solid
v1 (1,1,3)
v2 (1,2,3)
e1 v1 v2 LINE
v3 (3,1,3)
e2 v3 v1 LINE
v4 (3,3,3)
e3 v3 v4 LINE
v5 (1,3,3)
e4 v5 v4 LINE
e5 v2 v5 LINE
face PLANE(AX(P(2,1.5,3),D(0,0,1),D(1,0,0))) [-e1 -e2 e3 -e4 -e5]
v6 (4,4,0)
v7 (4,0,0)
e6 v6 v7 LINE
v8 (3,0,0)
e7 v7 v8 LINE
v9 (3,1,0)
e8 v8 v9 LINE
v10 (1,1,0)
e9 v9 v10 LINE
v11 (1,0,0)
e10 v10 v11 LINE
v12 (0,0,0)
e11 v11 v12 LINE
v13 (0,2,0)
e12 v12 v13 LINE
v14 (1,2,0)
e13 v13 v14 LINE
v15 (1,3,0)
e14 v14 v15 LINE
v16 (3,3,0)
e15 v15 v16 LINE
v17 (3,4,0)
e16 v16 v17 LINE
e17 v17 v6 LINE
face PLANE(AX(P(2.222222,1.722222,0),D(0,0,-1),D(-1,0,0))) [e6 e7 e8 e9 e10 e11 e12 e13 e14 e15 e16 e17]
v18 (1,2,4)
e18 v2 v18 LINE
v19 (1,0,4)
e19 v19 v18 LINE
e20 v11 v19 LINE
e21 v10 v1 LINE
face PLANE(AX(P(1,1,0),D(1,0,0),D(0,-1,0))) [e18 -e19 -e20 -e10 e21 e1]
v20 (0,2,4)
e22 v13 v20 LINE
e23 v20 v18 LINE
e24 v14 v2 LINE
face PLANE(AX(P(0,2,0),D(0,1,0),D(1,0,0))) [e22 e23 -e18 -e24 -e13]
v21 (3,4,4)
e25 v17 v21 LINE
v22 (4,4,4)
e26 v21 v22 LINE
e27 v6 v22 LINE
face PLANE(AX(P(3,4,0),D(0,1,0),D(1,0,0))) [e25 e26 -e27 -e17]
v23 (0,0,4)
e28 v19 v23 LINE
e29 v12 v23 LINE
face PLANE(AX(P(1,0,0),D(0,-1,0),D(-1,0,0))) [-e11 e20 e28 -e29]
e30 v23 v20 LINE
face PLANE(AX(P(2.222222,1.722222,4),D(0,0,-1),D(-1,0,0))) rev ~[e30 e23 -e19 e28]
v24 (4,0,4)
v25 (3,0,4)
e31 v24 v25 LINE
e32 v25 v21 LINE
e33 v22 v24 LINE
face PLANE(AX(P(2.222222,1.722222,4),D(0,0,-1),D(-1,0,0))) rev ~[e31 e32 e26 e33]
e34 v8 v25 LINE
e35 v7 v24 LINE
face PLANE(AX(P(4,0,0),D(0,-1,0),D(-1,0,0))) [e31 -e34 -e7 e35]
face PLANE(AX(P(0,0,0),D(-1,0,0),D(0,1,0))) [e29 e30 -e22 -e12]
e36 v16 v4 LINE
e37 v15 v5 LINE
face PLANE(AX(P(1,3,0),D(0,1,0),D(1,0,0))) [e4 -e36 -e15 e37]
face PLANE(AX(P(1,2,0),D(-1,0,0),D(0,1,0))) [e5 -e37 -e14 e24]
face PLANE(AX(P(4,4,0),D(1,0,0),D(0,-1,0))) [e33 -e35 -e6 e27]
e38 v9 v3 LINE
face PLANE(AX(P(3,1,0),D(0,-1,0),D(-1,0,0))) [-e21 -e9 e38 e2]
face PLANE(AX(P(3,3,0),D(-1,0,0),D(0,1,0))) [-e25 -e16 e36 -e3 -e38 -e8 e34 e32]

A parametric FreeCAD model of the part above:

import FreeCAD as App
import Part
import Sketcher
Q = App.Units.Quantity

doc = App.newDocument("Part")
params = doc.addObject("Spreadsheet::Sheet", "Params")
for row, (alias, value) in enumerate([
    ("sketch1_width", "1 mm"),
    ("sketch1_width2", "2 mm"),
    ("pad1_length", "4 mm"),
    ("sketch2_width", "2 mm"),
    ("sketch2_height", "3 mm"),
    ("pocket1_length", "1 mm"),
], start=1):
    params.set(f"A{row}", alias)
    params.set(f"B{row}", "=" + value)
    params.setAlias(f"B{row}", alias)

body = doc.addObject("PartDesign::Body", "Body")

sketch1 = body.newObject("Sketcher::SketchObject", "Sketch")
sketch1.AttachmentSupport = (doc.getObject("XY_Plane"), [""])
sketch1.MapMode = "FlatFace"
sketch1.addGeometry([
    Part.LineSegment(App.Vector(0, 2, 0), App.Vector(0, 0, 0)),
    Part.LineSegment(App.Vector(0, 0, 0), App.Vector(1, 0, 0)),
    Part.LineSegment(App.Vector(1, 0, 0), App.Vector(1, 1, 0)),
    Part.LineSegment(App.Vector(1, 1, 0), App.Vector(3, 1, 0)),
    Part.LineSegment(App.Vector(3, 1, 0), App.Vector(3, 0, 0)),
    Part.LineSegment(App.Vector(3, 0, 0), App.Vector(4, 0, 0)),
    Part.LineSegment(App.Vector(4, 0, 0), App.Vector(4, 4, 0)),
    Part.LineSegment(App.Vector(4, 4, 0), App.Vector(3, 4, 0)),
    Part.LineSegment(App.Vector(3, 4, 0), App.Vector(3, 3, 0)),
    Part.LineSegment(App.Vector(3, 3, 0), App.Vector(1, 3, 0)),
    Part.LineSegment(App.Vector(1, 3, 0), App.Vector(1, 2, 0)),
    Part.LineSegment(App.Vector(1, 2, 0), App.Vector(0, 2, 0)),
], False)
sketch1.addConstraint([
    Sketcher.Constraint("Coincident", 0, 2, 1, 1),
    Sketcher.Constraint("Coincident", 1, 2, 2, 1),
    Sketcher.Constraint("Coincident", 2, 2, 3, 1),
    Sketcher.Constraint("Coincident", 3, 2, 4, 1),
    Sketcher.Constraint("Coincident", 4, 2, 5, 1),
    Sketcher.Constraint("Coincident", 5, 2, 6, 1),
    Sketcher.Constraint("Coincident", 6, 2, 7, 1),
    Sketcher.Constraint("Coincident", 7, 2, 8, 1),
    Sketcher.Constraint("Coincident", 8, 2, 9, 1),
    Sketcher.Constraint("Coincident", 9, 2, 10, 1),
    Sketcher.Constraint("Coincident", 10, 2, 11, 1),
    Sketcher.Constraint("Coincident", 11, 2, 0, 1),
    Sketcher.Constraint("Vertical", 0),
    Sketcher.Constraint("Horizontal", 1),
    Sketcher.Constraint("Vertical", 2),
    Sketcher.Constraint("Horizontal", 3),
    Sketcher.Constraint("Vertical", 4),
    Sketcher.Constraint("Horizontal", 5),
    Sketcher.Constraint("Vertical", 6),
    Sketcher.Constraint("Horizontal", 7),
    Sketcher.Constraint("Vertical", 8),
    Sketcher.Constraint("Horizontal", 9),
    Sketcher.Constraint("Vertical", 10),
    Sketcher.Constraint("Horizontal", 11),
    Sketcher.Constraint("Coincident", 0, 2, -1, 1),
    Sketcher.Constraint("PointOnObject", 4, 2, -1),
    Sketcher.Constraint("Vertical", 4, 2, 7, 2),
    Sketcher.Constraint("Vertical", 2, 2, 9, 2),
    Sketcher.Constraint("Equal", 1, 5),
    Sketcher.Constraint("Equal", 9, 0),
    Sketcher.Constraint("Equal", 11, 2),
    Sketcher.Constraint("Equal", 4, 8),
    Sketcher.Constraint("Equal", 8, 10),
    Sketcher.Constraint("DistanceX", 1, 1, 1, 2, Q("1 mm")),
    Sketcher.Constraint("DistanceX", 3, 1, 3, 2, Q("2 mm")),
])
sketch1.setExpression("Constraints[33]", "Params.sketch1_width")
sketch1.setExpression("Constraints[34]", "Params.sketch1_width2")
pad1 = body.newObject("PartDesign::Pad", "Pad")
pad1.Profile = sketch1
pad1.setExpression("Length", "Params.pad1_length")

sketch2 = body.newObject("Sketcher::SketchObject", "Sketch001")
sketch2.AttachmentSupport = (doc.getObject("XY_Plane"), [""])
sketch2.MapMode = "FlatFace"
sketch2.AttachmentOffset = App.Placement(App.Vector(0, 0, 4), App.Rotation())
sketch2.addGeometry([
    Part.LineSegment(App.Vector(1, 3, 0), App.Vector(1, 0, 0)),
    Part.LineSegment(App.Vector(1, 0, 0), App.Vector(3, 0, 0)),
    Part.LineSegment(App.Vector(3, 0, 0), App.Vector(3, 3, 0)),
    Part.LineSegment(App.Vector(3, 3, 0), App.Vector(1, 3, 0)),
], False)
sketch2.addConstraint([
    Sketcher.Constraint("Coincident", 0, 2, 1, 1),
    Sketcher.Constraint("Coincident", 1, 2, 2, 1),
    Sketcher.Constraint("Coincident", 2, 2, 3, 1),
    Sketcher.Constraint("Coincident", 3, 2, 0, 1),
    Sketcher.Constraint("Vertical", 0),
    Sketcher.Constraint("Horizontal", 1),
    Sketcher.Constraint("Vertical", 2),
    Sketcher.Constraint("Horizontal", 3),
    Sketcher.Constraint("PointOnObject", 0, 2, -1),
    Sketcher.Constraint("DistanceX", 1, 1, 1, 2, Q("2 mm")),
    Sketcher.Constraint("DistanceY", 0, 2, 0, 1, Q("3 mm")),
    Sketcher.Constraint("DistanceX", -1, 1, 0, 2, Q("1 mm")),
])
sketch2.setExpression("Constraints[9]", "Params.sketch2_width")
sketch2.setExpression("Constraints[10]", "Params.sketch2_height")
pocket1 = body.newObject("PartDesign::Pocket", "Pocket")
pocket1.Profile = sketch2
pocket1.setExpression("Length", "Params.pocket1_length")

doc.recompute()
